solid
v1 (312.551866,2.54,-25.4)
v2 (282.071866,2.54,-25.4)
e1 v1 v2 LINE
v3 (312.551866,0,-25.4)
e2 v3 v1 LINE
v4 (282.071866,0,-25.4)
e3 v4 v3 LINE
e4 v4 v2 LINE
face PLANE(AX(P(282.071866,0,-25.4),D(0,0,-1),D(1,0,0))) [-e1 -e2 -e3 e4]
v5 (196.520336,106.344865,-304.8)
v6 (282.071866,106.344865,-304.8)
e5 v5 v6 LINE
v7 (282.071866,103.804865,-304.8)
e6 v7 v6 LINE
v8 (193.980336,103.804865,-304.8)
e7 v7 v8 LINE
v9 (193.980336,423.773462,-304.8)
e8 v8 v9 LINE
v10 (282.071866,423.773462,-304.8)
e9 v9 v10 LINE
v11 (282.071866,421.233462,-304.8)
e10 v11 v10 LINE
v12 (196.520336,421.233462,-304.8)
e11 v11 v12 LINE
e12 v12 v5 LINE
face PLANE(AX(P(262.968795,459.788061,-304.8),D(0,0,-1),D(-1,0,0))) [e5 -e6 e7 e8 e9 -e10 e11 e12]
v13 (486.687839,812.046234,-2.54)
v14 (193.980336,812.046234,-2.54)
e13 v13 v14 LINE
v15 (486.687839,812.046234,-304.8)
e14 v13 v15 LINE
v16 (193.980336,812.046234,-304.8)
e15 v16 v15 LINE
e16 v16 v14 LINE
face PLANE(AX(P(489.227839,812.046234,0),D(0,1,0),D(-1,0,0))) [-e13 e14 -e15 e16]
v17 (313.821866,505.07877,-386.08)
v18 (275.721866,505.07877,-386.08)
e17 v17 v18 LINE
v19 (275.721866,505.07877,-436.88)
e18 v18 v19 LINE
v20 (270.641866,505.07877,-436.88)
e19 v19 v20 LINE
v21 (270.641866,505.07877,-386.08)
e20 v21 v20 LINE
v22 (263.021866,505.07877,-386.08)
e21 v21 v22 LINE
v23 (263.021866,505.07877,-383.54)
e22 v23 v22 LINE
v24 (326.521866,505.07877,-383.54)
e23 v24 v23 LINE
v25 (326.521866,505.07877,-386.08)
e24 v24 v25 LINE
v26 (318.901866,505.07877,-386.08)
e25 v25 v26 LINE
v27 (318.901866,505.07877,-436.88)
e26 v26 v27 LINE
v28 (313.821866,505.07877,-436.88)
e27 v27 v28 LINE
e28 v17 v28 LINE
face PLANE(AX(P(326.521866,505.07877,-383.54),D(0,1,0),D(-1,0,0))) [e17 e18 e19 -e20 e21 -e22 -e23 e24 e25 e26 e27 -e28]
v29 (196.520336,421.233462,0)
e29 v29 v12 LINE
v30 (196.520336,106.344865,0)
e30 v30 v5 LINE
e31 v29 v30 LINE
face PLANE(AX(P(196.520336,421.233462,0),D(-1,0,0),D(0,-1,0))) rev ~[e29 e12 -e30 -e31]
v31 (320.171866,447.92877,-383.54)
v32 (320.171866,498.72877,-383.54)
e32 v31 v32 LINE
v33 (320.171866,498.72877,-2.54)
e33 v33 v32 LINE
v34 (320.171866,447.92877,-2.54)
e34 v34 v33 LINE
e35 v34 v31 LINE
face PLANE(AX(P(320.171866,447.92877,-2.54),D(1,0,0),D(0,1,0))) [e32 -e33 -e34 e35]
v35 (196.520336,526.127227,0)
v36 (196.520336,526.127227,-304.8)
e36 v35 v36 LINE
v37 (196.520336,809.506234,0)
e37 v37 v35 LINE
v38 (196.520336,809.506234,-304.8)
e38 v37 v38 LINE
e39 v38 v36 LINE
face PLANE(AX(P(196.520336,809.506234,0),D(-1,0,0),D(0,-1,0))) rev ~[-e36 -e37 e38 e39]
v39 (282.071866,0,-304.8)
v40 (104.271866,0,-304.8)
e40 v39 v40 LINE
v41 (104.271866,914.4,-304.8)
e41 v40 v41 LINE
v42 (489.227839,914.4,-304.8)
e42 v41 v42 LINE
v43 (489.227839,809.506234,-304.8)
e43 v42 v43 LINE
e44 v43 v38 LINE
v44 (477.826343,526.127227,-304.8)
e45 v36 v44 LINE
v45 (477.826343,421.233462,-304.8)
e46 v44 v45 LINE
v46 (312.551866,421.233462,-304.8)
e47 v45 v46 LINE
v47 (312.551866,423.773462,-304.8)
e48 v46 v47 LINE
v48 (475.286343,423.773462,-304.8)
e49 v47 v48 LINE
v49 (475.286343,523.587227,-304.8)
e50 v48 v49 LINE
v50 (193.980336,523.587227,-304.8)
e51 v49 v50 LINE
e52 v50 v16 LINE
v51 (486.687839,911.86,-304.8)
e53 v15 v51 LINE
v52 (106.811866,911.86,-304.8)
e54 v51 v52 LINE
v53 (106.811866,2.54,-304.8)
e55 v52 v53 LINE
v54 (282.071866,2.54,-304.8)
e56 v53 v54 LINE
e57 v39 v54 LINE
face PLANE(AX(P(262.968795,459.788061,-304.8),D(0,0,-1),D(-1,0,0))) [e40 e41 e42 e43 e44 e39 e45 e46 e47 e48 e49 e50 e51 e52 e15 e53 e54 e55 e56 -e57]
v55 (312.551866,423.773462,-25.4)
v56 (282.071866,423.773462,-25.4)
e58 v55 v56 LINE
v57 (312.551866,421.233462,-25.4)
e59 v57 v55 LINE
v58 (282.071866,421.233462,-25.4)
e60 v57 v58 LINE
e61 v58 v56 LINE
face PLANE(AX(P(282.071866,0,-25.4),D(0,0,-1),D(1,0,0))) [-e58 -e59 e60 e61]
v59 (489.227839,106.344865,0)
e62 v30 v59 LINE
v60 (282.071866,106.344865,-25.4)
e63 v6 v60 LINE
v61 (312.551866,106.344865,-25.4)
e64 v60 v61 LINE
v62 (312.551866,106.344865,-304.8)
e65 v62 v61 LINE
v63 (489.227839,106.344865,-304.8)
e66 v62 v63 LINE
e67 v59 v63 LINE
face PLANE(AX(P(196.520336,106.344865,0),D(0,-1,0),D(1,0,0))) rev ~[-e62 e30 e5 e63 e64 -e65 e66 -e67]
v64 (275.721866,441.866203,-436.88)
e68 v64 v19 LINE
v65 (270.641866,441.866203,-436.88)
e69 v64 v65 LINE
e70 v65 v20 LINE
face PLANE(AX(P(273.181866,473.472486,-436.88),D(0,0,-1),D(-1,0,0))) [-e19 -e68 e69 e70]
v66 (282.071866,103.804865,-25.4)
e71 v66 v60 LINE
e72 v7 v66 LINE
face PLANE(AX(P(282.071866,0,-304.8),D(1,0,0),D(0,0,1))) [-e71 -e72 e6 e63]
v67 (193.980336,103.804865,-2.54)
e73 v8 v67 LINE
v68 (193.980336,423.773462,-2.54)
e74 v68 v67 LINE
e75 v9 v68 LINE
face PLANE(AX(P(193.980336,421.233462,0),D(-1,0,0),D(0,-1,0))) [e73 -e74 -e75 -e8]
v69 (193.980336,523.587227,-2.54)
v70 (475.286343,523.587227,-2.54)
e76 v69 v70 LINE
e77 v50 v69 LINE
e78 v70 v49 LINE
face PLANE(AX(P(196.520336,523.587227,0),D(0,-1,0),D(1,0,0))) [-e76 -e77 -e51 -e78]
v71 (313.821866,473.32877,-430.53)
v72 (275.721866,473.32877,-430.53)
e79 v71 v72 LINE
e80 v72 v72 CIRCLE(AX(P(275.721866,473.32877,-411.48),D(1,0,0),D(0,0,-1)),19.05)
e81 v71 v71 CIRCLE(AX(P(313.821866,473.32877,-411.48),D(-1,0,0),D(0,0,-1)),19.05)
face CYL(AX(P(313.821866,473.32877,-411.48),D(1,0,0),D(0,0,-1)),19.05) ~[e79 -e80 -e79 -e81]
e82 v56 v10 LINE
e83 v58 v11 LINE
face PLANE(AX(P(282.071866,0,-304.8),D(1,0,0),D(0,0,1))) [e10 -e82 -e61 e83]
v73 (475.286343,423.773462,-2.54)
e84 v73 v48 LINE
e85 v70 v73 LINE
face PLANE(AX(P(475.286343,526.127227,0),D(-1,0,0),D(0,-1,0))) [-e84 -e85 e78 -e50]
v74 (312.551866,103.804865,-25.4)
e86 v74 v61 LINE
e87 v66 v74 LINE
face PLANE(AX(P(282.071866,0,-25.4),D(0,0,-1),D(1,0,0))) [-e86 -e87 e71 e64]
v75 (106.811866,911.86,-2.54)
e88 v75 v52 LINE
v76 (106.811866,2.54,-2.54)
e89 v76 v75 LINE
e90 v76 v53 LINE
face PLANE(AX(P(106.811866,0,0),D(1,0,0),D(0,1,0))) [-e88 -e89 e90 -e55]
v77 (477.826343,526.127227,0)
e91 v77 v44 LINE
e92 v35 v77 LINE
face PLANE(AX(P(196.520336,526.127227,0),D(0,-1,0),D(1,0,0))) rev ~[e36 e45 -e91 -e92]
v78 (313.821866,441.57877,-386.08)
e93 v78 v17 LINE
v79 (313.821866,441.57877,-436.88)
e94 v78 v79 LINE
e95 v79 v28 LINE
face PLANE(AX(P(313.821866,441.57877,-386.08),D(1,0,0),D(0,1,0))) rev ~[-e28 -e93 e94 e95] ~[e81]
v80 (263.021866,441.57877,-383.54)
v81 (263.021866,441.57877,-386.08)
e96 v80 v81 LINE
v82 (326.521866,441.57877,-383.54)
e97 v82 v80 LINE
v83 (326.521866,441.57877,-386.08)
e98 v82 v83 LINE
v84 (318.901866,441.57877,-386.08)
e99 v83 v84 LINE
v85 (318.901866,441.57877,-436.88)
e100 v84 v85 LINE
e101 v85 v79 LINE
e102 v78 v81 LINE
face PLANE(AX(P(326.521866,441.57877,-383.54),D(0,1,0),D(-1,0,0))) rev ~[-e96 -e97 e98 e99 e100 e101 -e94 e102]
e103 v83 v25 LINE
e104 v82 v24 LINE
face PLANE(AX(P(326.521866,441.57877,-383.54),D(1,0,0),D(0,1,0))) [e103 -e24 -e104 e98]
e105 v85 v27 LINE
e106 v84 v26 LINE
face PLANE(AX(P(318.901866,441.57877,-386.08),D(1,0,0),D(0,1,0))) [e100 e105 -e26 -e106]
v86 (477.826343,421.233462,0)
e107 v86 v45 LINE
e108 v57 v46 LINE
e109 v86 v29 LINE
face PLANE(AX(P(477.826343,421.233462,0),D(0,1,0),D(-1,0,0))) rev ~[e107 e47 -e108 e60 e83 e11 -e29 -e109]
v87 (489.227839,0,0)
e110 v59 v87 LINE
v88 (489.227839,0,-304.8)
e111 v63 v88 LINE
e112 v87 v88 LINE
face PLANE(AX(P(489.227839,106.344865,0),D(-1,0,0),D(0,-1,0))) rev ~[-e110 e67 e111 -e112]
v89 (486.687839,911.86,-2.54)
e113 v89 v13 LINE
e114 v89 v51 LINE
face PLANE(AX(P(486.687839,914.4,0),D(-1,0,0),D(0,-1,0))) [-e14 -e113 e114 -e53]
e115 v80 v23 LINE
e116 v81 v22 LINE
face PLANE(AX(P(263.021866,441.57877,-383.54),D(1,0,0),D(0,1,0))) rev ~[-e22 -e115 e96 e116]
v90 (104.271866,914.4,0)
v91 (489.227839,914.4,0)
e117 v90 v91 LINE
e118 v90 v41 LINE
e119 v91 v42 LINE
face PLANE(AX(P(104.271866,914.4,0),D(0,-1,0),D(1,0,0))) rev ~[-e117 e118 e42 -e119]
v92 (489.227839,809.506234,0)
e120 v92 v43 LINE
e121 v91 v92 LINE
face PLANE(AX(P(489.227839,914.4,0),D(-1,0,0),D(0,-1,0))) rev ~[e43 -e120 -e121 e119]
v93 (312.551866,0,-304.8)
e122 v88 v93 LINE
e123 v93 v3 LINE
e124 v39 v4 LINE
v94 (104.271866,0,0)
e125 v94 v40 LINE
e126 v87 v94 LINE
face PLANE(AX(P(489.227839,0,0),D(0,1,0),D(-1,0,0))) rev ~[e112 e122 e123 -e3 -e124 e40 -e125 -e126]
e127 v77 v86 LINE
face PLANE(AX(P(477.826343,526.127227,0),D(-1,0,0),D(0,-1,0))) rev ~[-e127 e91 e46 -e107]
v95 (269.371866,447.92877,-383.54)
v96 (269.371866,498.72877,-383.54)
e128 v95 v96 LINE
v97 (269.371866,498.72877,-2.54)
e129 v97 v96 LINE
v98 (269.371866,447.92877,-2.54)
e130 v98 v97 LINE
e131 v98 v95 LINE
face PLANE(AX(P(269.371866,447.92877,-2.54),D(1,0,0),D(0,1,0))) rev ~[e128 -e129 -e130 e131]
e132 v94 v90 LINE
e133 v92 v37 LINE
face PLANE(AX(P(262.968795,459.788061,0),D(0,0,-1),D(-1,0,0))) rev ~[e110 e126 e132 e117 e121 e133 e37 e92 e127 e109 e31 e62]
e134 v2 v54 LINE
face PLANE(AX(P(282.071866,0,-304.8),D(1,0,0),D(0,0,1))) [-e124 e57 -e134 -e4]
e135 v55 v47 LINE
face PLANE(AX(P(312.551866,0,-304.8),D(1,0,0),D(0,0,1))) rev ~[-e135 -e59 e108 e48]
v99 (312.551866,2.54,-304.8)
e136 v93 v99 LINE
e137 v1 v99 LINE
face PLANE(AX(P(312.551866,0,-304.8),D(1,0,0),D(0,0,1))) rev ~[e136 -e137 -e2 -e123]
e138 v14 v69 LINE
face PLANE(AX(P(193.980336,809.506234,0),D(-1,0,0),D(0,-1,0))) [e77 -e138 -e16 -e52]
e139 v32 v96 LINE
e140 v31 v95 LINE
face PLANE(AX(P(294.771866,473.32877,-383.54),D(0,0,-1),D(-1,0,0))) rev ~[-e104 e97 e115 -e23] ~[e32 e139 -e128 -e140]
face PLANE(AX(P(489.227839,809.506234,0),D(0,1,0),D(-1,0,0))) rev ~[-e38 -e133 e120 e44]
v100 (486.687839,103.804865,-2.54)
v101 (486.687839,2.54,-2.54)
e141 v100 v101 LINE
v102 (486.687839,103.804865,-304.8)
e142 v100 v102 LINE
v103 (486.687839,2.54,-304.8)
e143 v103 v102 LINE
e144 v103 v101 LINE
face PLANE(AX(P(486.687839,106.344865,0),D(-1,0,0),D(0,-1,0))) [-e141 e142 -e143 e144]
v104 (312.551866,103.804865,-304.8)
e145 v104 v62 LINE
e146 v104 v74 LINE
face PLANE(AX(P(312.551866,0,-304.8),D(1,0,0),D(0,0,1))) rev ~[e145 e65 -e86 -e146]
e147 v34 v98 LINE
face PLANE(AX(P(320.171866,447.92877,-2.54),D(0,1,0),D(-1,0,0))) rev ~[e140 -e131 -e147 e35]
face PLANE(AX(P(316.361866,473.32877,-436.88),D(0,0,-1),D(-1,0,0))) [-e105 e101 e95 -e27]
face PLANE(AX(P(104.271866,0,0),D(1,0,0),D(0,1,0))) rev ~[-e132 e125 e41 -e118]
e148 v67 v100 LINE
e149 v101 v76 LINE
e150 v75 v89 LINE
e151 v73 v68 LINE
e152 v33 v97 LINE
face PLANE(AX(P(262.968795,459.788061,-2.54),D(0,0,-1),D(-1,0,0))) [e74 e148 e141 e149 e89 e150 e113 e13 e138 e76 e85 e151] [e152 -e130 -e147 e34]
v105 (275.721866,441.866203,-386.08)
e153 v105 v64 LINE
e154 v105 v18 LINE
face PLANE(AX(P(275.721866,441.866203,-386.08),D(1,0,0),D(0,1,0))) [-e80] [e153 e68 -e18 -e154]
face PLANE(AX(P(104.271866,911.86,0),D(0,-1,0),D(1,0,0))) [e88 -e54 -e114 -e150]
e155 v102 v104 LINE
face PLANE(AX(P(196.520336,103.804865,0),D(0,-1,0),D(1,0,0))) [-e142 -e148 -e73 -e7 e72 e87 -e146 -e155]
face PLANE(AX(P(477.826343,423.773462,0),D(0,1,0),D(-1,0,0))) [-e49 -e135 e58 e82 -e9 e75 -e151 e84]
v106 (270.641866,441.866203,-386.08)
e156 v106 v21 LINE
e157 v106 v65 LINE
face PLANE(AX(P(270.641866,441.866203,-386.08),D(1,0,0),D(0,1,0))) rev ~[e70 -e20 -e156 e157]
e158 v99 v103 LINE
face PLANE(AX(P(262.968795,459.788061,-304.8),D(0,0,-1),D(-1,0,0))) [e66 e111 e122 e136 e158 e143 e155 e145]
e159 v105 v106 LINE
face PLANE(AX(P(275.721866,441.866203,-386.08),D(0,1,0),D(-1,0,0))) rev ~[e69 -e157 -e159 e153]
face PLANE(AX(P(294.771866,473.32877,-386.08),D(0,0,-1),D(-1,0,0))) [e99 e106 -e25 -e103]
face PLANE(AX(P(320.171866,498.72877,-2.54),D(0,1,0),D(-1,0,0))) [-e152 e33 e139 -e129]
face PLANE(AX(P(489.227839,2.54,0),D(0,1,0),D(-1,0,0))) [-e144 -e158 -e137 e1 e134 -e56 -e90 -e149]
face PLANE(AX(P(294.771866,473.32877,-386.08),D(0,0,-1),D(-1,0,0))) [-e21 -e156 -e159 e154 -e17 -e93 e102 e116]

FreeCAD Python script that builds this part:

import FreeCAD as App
import Part
import Sketcher
from FreeCAD import Vector
Q = App.Units.Quantity


def faces_at(feature, points):
    """Names of the faces that lie closest to the given points."""
    faces = feature.Shape.Faces
    near = lambda p: min(range(len(faces)), key=lambda i: faces[i].distToShape(Part.Vertex(*p))[0])
    return sorted({f"Face{near(p) + 1}" for p in points})

doc = App.newDocument("Part")
body = doc.addObject("PartDesign::Body", "Body")

sketch1 = body.newObject("Sketcher::SketchObject", "Sketch")
sketch1.AttachmentSupport = (doc.getObject("XY_Plane"), [""])
sketch1.MapMode = "FlatFace"
sketch1.addGeometry([
    Part.LineSegment(Vector(104, 0, 0), Vector(489, 0, 0)),
    Part.LineSegment(Vector(489, 0, 0), Vector(489, 106, 0)),
    Part.LineSegment(Vector(489, 106, 0), Vector(197, 106, 0)),
    Part.LineSegment(Vector(197, 106, 0), Vector(197, 421, 0)),
    Part.LineSegment(Vector(197, 421, 0), Vector(478, 421, 0)),
    Part.LineSegment(Vector(478, 421, 0), Vector(478, 526, 0)),
    Part.LineSegment(Vector(478, 526, 0), Vector(197, 526, 0)),
    Part.LineSegment(Vector(197, 526, 0), Vector(197, 810, 0)),
    Part.LineSegment(Vector(197, 810, 0), Vector(489, 810, 0)),
    Part.LineSegment(Vector(489, 810, 0), Vector(489, 914, 0)),
    Part.LineSegment(Vector(489, 914, 0), Vector(104, 914, 0)),
    Part.LineSegment(Vector(104, 914, 0), Vector(104, 0, 0)),
], False)
sketch1.addConstraint([
    Sketcher.Constraint("Coincident", 0, 2, 1, 1),
    Sketcher.Constraint("Coincident", 1, 2, 2, 1),
    Sketcher.Constraint("Coincident", 2, 2, 3, 1),
    Sketcher.Constraint("Coincident", 3, 2, 4, 1),
    Sketcher.Constraint("Coincident", 4, 2, 5, 1),
    Sketcher.Constraint("Coincident", 5, 2, 6, 1),
    Sketcher.Constraint("Coincident", 6, 2, 7, 1),
    Sketcher.Constraint("Coincident", 7, 2, 8, 1),
    Sketcher.Constraint("Coincident", 8, 2, 9, 1),
    Sketcher.Constraint("Coincident", 9, 2, 10, 1),
    Sketcher.Constraint("Coincident", 10, 2, 11, 1),
    Sketcher.Constraint("Coincident", 11, 2, 0, 1),
    Sketcher.Constraint("Horizontal", 0),
    Sketcher.Constraint("Vertical", 1),
    Sketcher.Constraint("Horizontal", 2),
    Sketcher.Constraint("Vertical", 3),
    Sketcher.Constraint("Horizontal", 4),
    Sketcher.Constraint("Vertical", 5),
    Sketcher.Constraint("Horizontal", 6),
    Sketcher.Constraint("Vertical", 7),
    Sketcher.Constraint("Horizontal", 8),
    Sketcher.Constraint("Vertical", 9),
    Sketcher.Constraint("Horizontal", 10),
    Sketcher.Constraint("Vertical", 11),
    Sketcher.Constraint("PointOnObject", 0, 2, -1),
    Sketcher.Constraint("Vertical", 3, 2, 6, 2),
    Sketcher.Constraint("Vertical", 1, 2, 8, 2),
    Sketcher.Constraint("Equal", 5, 9),
    Sketcher.Constraint("DistanceY", 11, 2, 11, 1, Q("36 in")),
    Sketcher.Constraint("DistanceX", 0, 1, 0, 2, Q("384.955974 mm")),
    Sketcher.Constraint("DistanceX", 2, 2, 2, 1, Q("292.707504 mm")),
    Sketcher.Constraint("DistanceX", 4, 1, 4, 2, Q("281.306008 mm")),
    Sketcher.Constraint("DistanceY", 1, 1, 1, 2, Q("106.344865 mm")),
    Sketcher.Constraint("DistanceY", 3, 1, 3, 2, Q("314.888597 mm")),
    Sketcher.Constraint("DistanceY", 5, 1, 5, 2, Q("104.893766 mm")),
    Sketcher.Constraint("DistanceX", -1, 1, 0, 2, Q("489.227839 mm")),
])
pad1 = body.newObject("PartDesign::Pad", "Pad")
pad1.Profile = sketch1
pad1.Length = Q("12 in")
pad1.Reversed = True
doc.recompute()

thickness = body.newObject("PartDesign::Thickness", "Thickness")
thickness.Base = (pad1, faces_at(pad1, [(296.75, 457.2, -304.8)]))
thickness.Value = Q("0.1 in")
thickness.Reversed = True
thickness.Join = "Intersection"

sketch2 = body.newObject("Sketcher::SketchObject", "Sketch001")
sketch2.AttachmentSupport = (doc.getObject("XY_Plane"), [""])
sketch2.MapMode = "FlatFace"
sketch2.AttachmentOffset = App.Placement(Vector(0, 0, -0.1 * 25.4), App.Rotation())
sketch2.addGeometry([
    Part.LineSegment(Vector(320, 499, 0), Vector(320, 448, 0)),
    Part.LineSegment(Vector(320, 448, 0), Vector(269, 448, 0)),
    Part.LineSegment(Vector(269, 448, 0), Vector(269, 499, 0)),
    Part.LineSegment(Vector(269, 499, 0), Vector(320, 499, 0)),
], False)
sketch2.addConstraint([
    Sketcher.Constraint("Coincident", 0, 2, 1, 1),
    Sketcher.Constraint("Coincident", 1, 2, 2, 1),
    Sketcher.Constraint("Coincident", 2, 2, 3, 1),
    Sketcher.Constraint("Coincident", 3, 2, 0, 1),
    Sketcher.Constraint("Vertical", 0),
    Sketcher.Constraint("Horizontal", 1),
    Sketcher.Constraint("Vertical", 2),
    Sketcher.Constraint("Horizontal", 3),
    Sketcher.Constraint("Equal", 3, 0),
    Sketcher.Constraint("DistanceX", 1, 2, 1, 1, Q("2 in")),
    Sketcher.Constraint("DistanceY", -1, 1, 0, 2, Q("447.92877 mm")),
    Sketcher.Constraint("DistanceX", -1, 1, 0, 2, Q("320.171866 mm")),
])
pad2 = body.newObject("PartDesign::Pad", "Pad001")
pad2.Profile = sketch2
pad2.Length = Q("15 in")
pad2.Reversed = True

sketch3 = body.newObject("Sketcher::SketchObject", "Sketch002")
sketch3.AttachmentSupport = (doc.getObject("XY_Plane"), [""])
sketch3.MapMode = "FlatFace"
sketch3.AttachmentOffset = App.Placement(Vector(0, 0, -15.1 * 25.4), App.Rotation())
sketch3.addGeometry([
    Part.LineSegment(Vector(327, 505, 0), Vector(327, 442, 0)),
    Part.LineSegment(Vector(327, 442, 0), Vector(263, 442, 0)),
    Part.LineSegment(Vector(263, 442, 0), Vector(263, 505, 0)),
    Part.LineSegment(Vector(263, 505, 0), Vector(327, 505, 0)),
], False)
sketch3.addConstraint([
    Sketcher.Constraint("Coincident", 0, 2, 1, 1),
    Sketcher.Constraint("Coincident", 1, 2, 2, 1),
    Sketcher.Constraint("Coincident", 2, 2, 3, 1),
    Sketcher.Constraint("Coincident", 3, 2, 0, 1),
    Sketcher.Constraint("Vertical", 0),
    Sketcher.Constraint("Horizontal", 1),
    Sketcher.Constraint("Vertical", 2),
    Sketcher.Constraint("Horizontal", 3),
    Sketcher.Constraint("Equal", 3, 0),
    Sketcher.Constraint("DistanceX", 1, 2, 1, 1, Q("2.5 in")),
    Sketcher.Constraint("DistanceY", -1, 1, 0, 2, Q("441.57877 mm")),
    Sketcher.Constraint("DistanceX", -1, 1, 0, 2, Q("326.521866 mm")),
])
pad3 = body.newObject("PartDesign::Pad", "Pad002")
pad3.Profile = sketch3
pad3.Length = Q("0.1 in")
pad3.Reversed = True

sketch4 = body.newObject("Sketcher::SketchObject", "Sketch003")
sketch4.AttachmentSupport = (doc.getObject("XY_Plane"), [""])
sketch4.MapMode = "FlatFace"
sketch4.AttachmentOffset = App.Placement(Vector(0, 0, -15.2 * 25.4), App.Rotation())
sketch4.addGeometry([
    Part.LineSegment(Vector(319, 505, 0), Vector(319, 442, 0)),
    Part.LineSegment(Vector(319, 442, 0), Vector(314, 442, 0)),
    Part.LineSegment(Vector(314, 442, 0), Vector(314, 505, 0)),
    Part.LineSegment(Vector(314, 505, 0), Vector(319, 505, 0)),
    Part.LineSegment(Vector(276, 505, 0), Vector(276, 442, 0)),
    Part.LineSegment(Vector(276, 442, 0), Vector(271, 442, 0)),
    Part.LineSegment(Vector(271, 442, 0), Vector(271, 505, 0)),
    Part.LineSegment(Vector(271, 505, 0), Vector(276, 505, 0)),
], False)
sketch4.addConstraint([
    Sketcher.Constraint("Coincident", 0, 2, 1, 1),
    Sketcher.Constraint("Coincident", 1, 2, 2, 1),
    Sketcher.Constraint("Coincident", 2, 2, 3, 1),
    Sketcher.Constraint("Coincident", 3, 2, 0, 1),
    Sketcher.Constraint("Coincident", 4, 2, 5, 1),
    Sketcher.Constraint("Coincident", 5, 2, 6, 1),
    Sketcher.Constraint("Coincident", 6, 2, 7, 1),
    Sketcher.Constraint("Coincident", 7, 2, 4, 1),
    Sketcher.Constraint("Vertical", 0),
    Sketcher.Constraint("Horizontal", 1),
    Sketcher.Constraint("Vertical", 2),
    Sketcher.Constraint("Horizontal", 3),
    Sketcher.Constraint("Vertical", 4),
    Sketcher.Constraint("Horizontal", 5),
    Sketcher.Constraint("Vertical", 6),
    Sketcher.Constraint("Horizontal", 7),
    Sketcher.Constraint("Horizontal", 3, 2, 6, 2),
    Sketcher.Constraint("Equal", 3, 5),
    Sketcher.Constraint("DistanceX", 1, 2, 1, 1, Q("0.2 in")),
    Sketcher.Constraint("DistanceY", 0, 2, 0, 1, Q("2.5 in")),
    Sketcher.Constraint("DistanceX", 4, 2, 1, 2, Q("1.5 in")),
    Sketcher.Constraint("DistanceY", 4, 2, 4, 1, Q("63.212567 mm")),
    Sketcher.Constraint("DistanceY", -1, 1, 0, 2, Q("441.57877 mm")),
    Sketcher.Constraint("DistanceX", -1, 1, 0, 2, Q("318.901866 mm")),
])
pad4 = body.newObject("PartDesign::Pad", "Pad003")
pad4.Profile = sketch4
pad4.Length = Q("2 in")
pad4.Reversed = True

sketch5 = body.newObject("Sketcher::SketchObject", "Sketch004")
sketch5.AttachmentSupport = (doc.getObject("YZ_Plane"), [""])
sketch5.MapMode = "FlatFace"
sketch5.AttachmentOffset = App.Placement(Vector(0, 0, 313.821866), App.Rotation())
sketch5.addGeometry(Part.Circle(Vector(473, -411, 0), Vector(0, 0, 1), 19), False)
sketch5.addConstraint([
    Sketcher.Constraint("Diameter", 0, Q("1.5 in")),
    Sketcher.Constraint("DistanceY", 0, 3, -1, 1, Q("16.2 in")),
    Sketcher.Constraint("DistanceX", -1, 1, 0, 3, Q("473.32877 mm")),
])
pad5 = body.newObject("PartDesign::Pad", "Pad004")
pad5.Profile = sketch5
pad5.Type = "UpToFirst"
pad5.Reversed = True

sketch6 = body.newObject("Sketcher::SketchObject", "Sketch005")
sketch6.AttachmentSupport = (doc.getObject("XZ_Plane"), [""])
sketch6.MapMode = "FlatFace"
sketch6.addGeometry([
    Part.LineSegment(Vector(282, -25, 0), Vector(282, -305, 0)),
    Part.LineSegment(Vector(282, -305, 0), Vector(313, -305, 0)),
    Part.LineSegment(Vector(313, -305, 0), Vector(313, -25, 0)),
    Part.LineSegment(Vector(313, -25, 0), Vector(282, -25, 0)),
], False)
sketch6.addConstraint([
    Sketcher.Constraint("Coincident", 0, 2, 1, 1),
    Sketcher.Constraint("Coincident", 1, 2, 2, 1),
    Sketcher.Constraint("Coincident", 2, 2, 3, 1),
    Sketcher.Constraint("Coincident", 3, 2, 0, 1),
    Sketcher.Constraint("Vertical", 0),
    Sketcher.Constraint("Horizontal", 1),
    Sketcher.Constraint("Vertical", 2),
    Sketcher.Constraint("Horizontal", 3),
    Sketcher.Constraint("DistanceY", 0, 2, 0, 1, Q("11 in")),
    Sketcher.Constraint("DistanceX", 1, 1, 1, 2, Q("1.2 in")),
    Sketcher.Constraint("DistanceY", 0, 2, -1, 1, Q("12 in")),
    Sketcher.Constraint("DistanceX", -1, 1, 0, 2, Q("282.071866 mm")),
])
pocket1 = body.newObject("PartDesign::Pocket", "Pocket")
pocket1.Profile = sketch6
pocket1.Length = Q("17 in")

doc.recompute()
